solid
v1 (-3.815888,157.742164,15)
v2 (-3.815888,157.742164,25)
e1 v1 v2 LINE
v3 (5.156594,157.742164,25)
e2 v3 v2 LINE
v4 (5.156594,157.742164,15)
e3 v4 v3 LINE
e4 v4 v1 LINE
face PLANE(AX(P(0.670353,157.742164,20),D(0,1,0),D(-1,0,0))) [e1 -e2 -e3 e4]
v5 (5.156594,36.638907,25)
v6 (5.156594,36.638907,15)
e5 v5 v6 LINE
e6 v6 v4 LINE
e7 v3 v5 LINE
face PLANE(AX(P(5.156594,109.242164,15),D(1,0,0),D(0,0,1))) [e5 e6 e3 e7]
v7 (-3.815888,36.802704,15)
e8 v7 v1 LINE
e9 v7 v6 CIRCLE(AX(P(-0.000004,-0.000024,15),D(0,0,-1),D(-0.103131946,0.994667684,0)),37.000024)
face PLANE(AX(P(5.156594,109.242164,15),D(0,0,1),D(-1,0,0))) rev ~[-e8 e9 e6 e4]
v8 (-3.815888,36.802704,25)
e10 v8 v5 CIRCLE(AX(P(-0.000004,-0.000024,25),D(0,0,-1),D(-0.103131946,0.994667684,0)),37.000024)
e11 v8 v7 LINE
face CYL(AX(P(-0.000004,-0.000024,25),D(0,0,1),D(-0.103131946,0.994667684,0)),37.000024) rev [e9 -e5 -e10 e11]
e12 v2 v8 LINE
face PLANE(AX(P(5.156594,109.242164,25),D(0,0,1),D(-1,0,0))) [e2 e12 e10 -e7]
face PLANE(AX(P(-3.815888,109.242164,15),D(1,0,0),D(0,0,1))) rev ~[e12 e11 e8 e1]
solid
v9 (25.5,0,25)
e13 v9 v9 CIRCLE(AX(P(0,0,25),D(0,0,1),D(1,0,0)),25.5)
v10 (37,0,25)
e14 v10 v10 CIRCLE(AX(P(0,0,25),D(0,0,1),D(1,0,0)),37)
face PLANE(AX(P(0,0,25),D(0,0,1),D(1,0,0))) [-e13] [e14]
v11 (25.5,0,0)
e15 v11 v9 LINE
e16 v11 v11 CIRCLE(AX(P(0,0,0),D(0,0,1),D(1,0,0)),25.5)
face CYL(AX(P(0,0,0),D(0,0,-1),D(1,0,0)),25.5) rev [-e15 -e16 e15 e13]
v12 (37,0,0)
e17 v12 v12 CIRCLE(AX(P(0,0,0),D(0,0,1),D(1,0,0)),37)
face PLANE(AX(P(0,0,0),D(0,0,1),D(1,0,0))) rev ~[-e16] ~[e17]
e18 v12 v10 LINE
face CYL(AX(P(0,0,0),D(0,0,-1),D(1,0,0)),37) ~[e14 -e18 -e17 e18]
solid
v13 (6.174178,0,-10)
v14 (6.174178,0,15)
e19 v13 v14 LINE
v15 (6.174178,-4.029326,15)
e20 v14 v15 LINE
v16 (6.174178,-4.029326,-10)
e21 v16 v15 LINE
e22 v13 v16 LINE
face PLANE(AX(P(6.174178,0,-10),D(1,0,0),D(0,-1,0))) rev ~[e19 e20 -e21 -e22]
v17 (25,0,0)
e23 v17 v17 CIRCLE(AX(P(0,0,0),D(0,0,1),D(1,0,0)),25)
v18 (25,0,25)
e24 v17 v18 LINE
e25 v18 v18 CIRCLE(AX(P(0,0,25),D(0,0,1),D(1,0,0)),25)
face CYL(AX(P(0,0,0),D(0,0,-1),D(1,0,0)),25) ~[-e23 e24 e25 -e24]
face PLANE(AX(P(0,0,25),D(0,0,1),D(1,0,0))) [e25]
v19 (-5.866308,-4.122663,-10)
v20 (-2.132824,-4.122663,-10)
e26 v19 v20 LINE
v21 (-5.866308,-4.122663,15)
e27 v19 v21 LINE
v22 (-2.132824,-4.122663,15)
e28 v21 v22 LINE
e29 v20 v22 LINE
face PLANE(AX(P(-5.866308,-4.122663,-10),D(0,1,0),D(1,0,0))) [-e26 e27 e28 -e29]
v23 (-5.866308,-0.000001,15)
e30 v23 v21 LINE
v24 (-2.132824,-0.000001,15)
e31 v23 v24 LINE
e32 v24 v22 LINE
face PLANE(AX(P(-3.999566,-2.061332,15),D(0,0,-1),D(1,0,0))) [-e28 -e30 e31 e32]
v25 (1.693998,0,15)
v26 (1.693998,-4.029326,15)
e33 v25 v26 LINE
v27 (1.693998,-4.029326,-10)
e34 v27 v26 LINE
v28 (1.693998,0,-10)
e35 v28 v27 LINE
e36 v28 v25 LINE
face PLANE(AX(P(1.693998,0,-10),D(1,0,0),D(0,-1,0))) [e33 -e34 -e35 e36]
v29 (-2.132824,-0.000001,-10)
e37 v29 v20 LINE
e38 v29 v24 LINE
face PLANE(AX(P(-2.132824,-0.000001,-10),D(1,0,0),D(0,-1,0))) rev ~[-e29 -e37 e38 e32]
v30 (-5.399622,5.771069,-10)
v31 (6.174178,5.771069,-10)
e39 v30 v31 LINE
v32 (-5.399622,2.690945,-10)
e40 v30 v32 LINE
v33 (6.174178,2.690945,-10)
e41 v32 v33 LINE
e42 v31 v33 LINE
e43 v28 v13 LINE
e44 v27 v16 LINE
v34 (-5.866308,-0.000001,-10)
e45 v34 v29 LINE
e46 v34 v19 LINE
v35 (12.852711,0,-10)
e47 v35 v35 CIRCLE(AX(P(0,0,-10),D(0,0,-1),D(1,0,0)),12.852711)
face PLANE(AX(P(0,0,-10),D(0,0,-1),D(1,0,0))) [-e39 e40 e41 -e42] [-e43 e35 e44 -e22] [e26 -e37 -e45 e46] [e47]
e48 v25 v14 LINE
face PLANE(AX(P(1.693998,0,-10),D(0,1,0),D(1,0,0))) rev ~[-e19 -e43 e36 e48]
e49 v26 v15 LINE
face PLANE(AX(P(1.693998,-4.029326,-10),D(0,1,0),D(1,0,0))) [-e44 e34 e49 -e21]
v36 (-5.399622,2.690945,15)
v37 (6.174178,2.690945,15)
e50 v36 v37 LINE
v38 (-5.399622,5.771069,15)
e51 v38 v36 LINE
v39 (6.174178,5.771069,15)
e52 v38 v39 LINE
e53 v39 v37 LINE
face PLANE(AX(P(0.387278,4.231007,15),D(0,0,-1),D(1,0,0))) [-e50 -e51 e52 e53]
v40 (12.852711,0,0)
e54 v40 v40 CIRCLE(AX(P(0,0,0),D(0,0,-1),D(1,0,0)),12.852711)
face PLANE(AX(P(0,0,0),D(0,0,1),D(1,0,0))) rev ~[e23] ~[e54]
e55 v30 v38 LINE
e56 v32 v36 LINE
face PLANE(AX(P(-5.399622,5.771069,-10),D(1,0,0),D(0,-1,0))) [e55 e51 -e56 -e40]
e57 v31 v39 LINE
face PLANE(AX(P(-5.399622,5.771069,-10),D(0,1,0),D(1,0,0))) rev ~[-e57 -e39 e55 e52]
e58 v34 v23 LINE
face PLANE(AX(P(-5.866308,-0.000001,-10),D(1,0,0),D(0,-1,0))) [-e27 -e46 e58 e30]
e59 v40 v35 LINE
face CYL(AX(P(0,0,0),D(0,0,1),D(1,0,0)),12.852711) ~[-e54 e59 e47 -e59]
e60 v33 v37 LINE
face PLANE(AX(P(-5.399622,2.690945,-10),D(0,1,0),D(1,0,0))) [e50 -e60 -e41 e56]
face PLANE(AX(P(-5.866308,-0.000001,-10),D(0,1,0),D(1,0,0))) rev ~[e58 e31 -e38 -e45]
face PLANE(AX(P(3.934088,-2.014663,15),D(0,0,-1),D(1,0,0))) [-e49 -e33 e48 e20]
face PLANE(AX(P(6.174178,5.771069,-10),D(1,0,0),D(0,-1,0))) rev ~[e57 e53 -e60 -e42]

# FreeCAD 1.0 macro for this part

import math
import FreeCAD as App
import Part
import Sketcher
Q = App.Units.Quantity


def add_polygon(sketch, points):
    """Adds a closed chain of lines whose ends are joined by coincident constraints."""
    first, n = sketch.GeometryCount, len(points)
    for a, b in zip(points, points[1:] + points[:1]):
        sketch.addGeometry(Part.LineSegment(App.Vector(*a, 0), App.Vector(*b, 0)), False)
    for i in range(n):
        sketch.addConstraint(Sketcher.Constraint("Coincident", first + i, 2, first + (i + 1) % n, 1))

doc = App.newDocument("Part")
body = doc.addObject("PartDesign::Body", "Body")

# Sketch on XY plane
sketch1 = body.newObject("Sketcher::SketchObject", "Sketch")
sketch1.AttachmentSupport = (doc.getObject("XY_Plane"), [""])
sketch1.MapMode = "FlatFace"
sketch1.addGeometry(Part.Circle(App.Vector(0, 0, 0), App.Vector(0, 0, 1), 25), False)
sketch1.addConstraint(Sketcher.Constraint("Coincident", 0, 3, -1, 1))
sketch1.addConstraint(Sketcher.Constraint("Diameter", 0, Q("50 mm")))
pad1 = body.newObject("PartDesign::Pad", "Pad")
pad1.Profile = sketch1
pad1.Length = 25

# Sketch on XY plane
sketch2 = body.newObject("Sketcher::SketchObject", "Sketch001")
sketch2.AttachmentSupport = (doc.getObject("XY_Plane"), [""])
sketch2.MapMode = "FlatFace"
sketch2.addGeometry(Part.Circle(App.Vector(0, 0, 0), App.Vector(0, 0, 1), 13), False)
sketch2.addConstraint(Sketcher.Constraint("Coincident", 0, 3, -1, 1))
sketch2.addConstraint(Sketcher.Constraint("Diameter", 0, Q("25.705422 mm")))
pad2 = body.newObject("PartDesign::Pad", "Pad001")
pad2.Profile = sketch2
pad2.Length = 10
pad2.Reversed = True

# Sketch on XY plane
sketch3 = body.newObject("Sketcher::SketchObject", "Sketch002")
sketch3.AttachmentSupport = (doc.getObject("XY_Plane"), [""])
sketch3.MapMode = "FlatFace"
sketch3.AttachmentOffset = App.Placement(App.Vector(0, 0, -10), App.Rotation())
add_polygon(sketch3, [(-5.9, -4.1), (-5.9, 0), (-2.1, 0), (-2.1, -4.1)])  # lines 0-3
add_polygon(sketch3, [(1.7, -4), (1.7, 0), (6.2, 0), (6.2, -4)])  # lines 4-7
add_polygon(sketch3, [(-5.4, 2.7), (-5.4, 5.8), (6.2, 5.8), (6.2, 2.7)])  # lines 8-11
sketch3.addConstraint(Sketcher.Constraint("Vertical", 0))
sketch3.addConstraint(Sketcher.Constraint("Horizontal", 1))
sketch3.addConstraint(Sketcher.Constraint("Vertical", 2))
sketch3.addConstraint(Sketcher.Constraint("Horizontal", 3))
sketch3.addConstraint(Sketcher.Constraint("Vertical", 4))
sketch3.addConstraint(Sketcher.Constraint("Horizontal", 5))
sketch3.addConstraint(Sketcher.Constraint("Vertical", 6))
sketch3.addConstraint(Sketcher.Constraint("Horizontal", 7))
sketch3.addConstraint(Sketcher.Constraint("Vertical", 8))
sketch3.addConstraint(Sketcher.Constraint("Horizontal", 9))
sketch3.addConstraint(Sketcher.Constraint("Vertical", 10))
sketch3.addConstraint(Sketcher.Constraint("Horizontal", 11))
sketch3.addConstraint(Sketcher.Constraint("PointOnObject", 0, 2, -1))
sketch3.addConstraint(Sketcher.Constraint("PointOnObject", 4, 2, -1))
sketch3.addConstraint(Sketcher.Constraint("Vertical", 6, 2, 9, 2))
sketch3.addConstraint(Sketcher.Constraint("DistanceX", 9, 1, 9, 2, Q("11.5738 mm")))
sketch3.addConstraint(Sketcher.Constraint("DistanceX", 5, 1, 5, 2, Q("4.48018 mm")))
sketch3.addConstraint(Sketcher.Constraint("DistanceX", 8, 2, 1, 2, Q("3.266798 mm")))
sketch3.addConstraint(Sketcher.Constraint("DistanceX", 1, 1, 1, 2, Q("3.733484 mm")))
sketch3.addConstraint(Sketcher.Constraint("DistanceY", 0, 1, 0, 2, Q("4.122663 mm")))
sketch3.addConstraint(Sketcher.Constraint("DistanceY", 4, 1, 4, 2, Q("4.029326 mm")))
sketch3.addConstraint(Sketcher.Constraint("DistanceY", 8, 1, 8, 2, Q("3.080124 mm")))
sketch3.addConstraint(Sketcher.Constraint("DistanceX", -1, 1, 5, 2, Q("6.174178 mm")))
sketch3.addConstraint(Sketcher.Constraint("DistanceY", -1, 1, 8, 2, Q("5.771069 mm")))
pocket1 = body.newObject("PartDesign::Pocket", "Pocket")
pocket1.Profile = sketch3
pocket1.Length = 25
pocket1.Reversed = True
body2 = doc.addObject("PartDesign::Body", "Body001")

# Sketch on XY plane
sketch4 = body2.newObject("Sketcher::SketchObject", "Sketch003")
sketch4.AttachmentSupport = (doc.getObject("XY_Plane001"), [""])
sketch4.MapMode = "FlatFace"
sketch4.addGeometry(Part.Circle(App.Vector(0, 0, 0), App.Vector(0, 0, 1), 37), False)
sketch4.addGeometry(Part.Circle(App.Vector(0, 0, 0), App.Vector(0, 0, 1), 26), False)
sketch4.addConstraint(Sketcher.Constraint("Coincident", 0, 3, -1, 1))
sketch4.addConstraint(Sketcher.Constraint("Coincident", 1, 3, -1, 1))
sketch4.addConstraint(Sketcher.Constraint("Diameter", 0, Q("74 mm")))
sketch4.addConstraint(Sketcher.Constraint("Diameter", 1, Q("51 mm")))
pad3 = body2.newObject("PartDesign::Pad", "Pad002")
pad3.Profile = sketch4
pad3.Length = 25
body3 = doc.addObject("PartDesign::Body", "Body002")

# Sketch on XY plane
sketch5 = body3.newObject("Sketcher::SketchObject", "Sketch004")
sketch5.AttachmentSupport = (doc.getObject("XY_Plane002"), [""])
sketch5.MapMode = "FlatFace"
sketch5.AttachmentOffset = App.Placement(App.Vector(0, 0, 25), App.Rotation())
sketch5.addGeometry(Part.ArcOfCircle(Part.Circle(App.Vector(0, 0, 0), App.Vector(0, 0, 1), 37), math.radians(81.99), math.radians(95.92)), False)
sketch5.addGeometry(Part.LineSegment(App.Vector(5, 37, 0), App.Vector(5, 109, 0)), False)
sketch5.addGeometry(Part.LineSegment(App.Vector(5, 109, 0), App.Vector(-4, 109, 0)), False)
sketch5.addGeometry(Part.LineSegment(App.Vector(-4, 109, 0), App.Vector(-4, 37, 0)), False)
sketch5.addConstraint(Sketcher.Constraint("Coincident", 0, 1, 1, 1))
sketch5.addConstraint(Sketcher.Constraint("Coincident", 1, 2, 2, 1))
sketch5.addConstraint(Sketcher.Constraint("Coincident", 2, 2, 3, 1))
sketch5.addConstraint(Sketcher.Constraint("Coincident", 3, 2, 0, 2))
sketch5.addConstraint(Sketcher.Constraint("Vertical", 1))
sketch5.addConstraint(Sketcher.Constraint("Horizontal", 2))
sketch5.addConstraint(Sketcher.Constraint("Vertical", 3))
sketch5.addConstraint(Sketcher.Constraint("Radius", 0, Q("37.000024 mm")))
sketch5.addConstraint(Sketcher.Constraint("DistanceY", 3, 2, 3, 1, Q("72.43946 mm")))
sketch5.addConstraint(Sketcher.Constraint("DistanceX", 2, 2, 2, 1, Q("8.972482 mm")))
sketch5.addConstraint(Sketcher.Constraint("DistanceY", 1, 1, 1, 2, Q("72.603257 mm")))
sketch5.addConstraint(Sketcher.Constraint("DistanceX", 2, 2, -1, 1, Q("3.815888 mm")))
sketch5.addConstraint(Sketcher.Constraint("DistanceY", -1, 1, 0, 1, Q("36.638907 mm")))
pad4 = body3.newObject("PartDesign::Pad", "Pad003")
pad4.Profile = sketch5
pad4.Length = 10
pad4.Reversed = True

# Sketch on XZ plane
sketch6 = body3.newObject("Sketcher::SketchObject", "Sketch005")
sketch6.AttachmentSupport = (doc.getObject("XZ_Plane002"), [""])
sketch6.MapMode = "FlatFace"
sketch6.AttachmentOffset = App.Placement(App.Vector(0, 0, -109.242164), App.Rotation())
add_polygon(sketch6, [(5, 25), (5, 15), (-4, 15), (-4, 25)])  # lines 0-3
sketch6.addConstraint(Sketcher.Constraint("Vertical", 0))
sketch6.addConstraint(Sketcher.Constraint("Horizontal", 1))
sketch6.addConstraint(Sketcher.Constraint("Vertical", 2))
sketch6.addConstraint(Sketcher.Constraint("Horizontal", 3))
sketch6.addConstraint(Sketcher.Constraint("DistanceY", 0, 2, 0, 1, Q("10 mm")))
sketch6.addConstraint(Sketcher.Constraint("DistanceY", -1, 1, 0, 2, Q("15 mm")))
sketch6.addConstraint(Sketcher.Constraint("DistanceX", 1, 2, 1, 1, Q("8.972482 mm")))
sketch6.addConstraint(Sketcher.Constraint("DistanceX", 1, 2, -1, 1, Q("3.815888 mm")))
pad5 = body3.newObject("PartDesign::Pad", "Pad004")
pad5.Profile = sketch6
pad5.Length = 48.5
pad5.Reversed = True

doc.recompute()
